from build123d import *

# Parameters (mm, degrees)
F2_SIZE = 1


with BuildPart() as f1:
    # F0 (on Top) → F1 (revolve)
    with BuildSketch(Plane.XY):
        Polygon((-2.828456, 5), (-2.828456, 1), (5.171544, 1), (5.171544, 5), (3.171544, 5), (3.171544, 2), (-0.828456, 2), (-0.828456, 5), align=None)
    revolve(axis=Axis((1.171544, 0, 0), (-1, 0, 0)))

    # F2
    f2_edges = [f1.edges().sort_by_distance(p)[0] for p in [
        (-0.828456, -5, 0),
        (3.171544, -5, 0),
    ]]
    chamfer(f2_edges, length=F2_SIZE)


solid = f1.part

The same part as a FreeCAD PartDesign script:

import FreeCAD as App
import Part
import Sketcher

V = App.Vector
Q = App.Units.Quantity


def edges_at(feature, points):
    """Names of the edges that pass closest to the given points."""
    edges = feature.Shape.Edges
    near = lambda p: min(range(len(edges)), key=lambda i: edges[i].distToShape(Part.Vertex(*p))[0])
    return sorted({f"Edge{near(p) + 1}" for p in points})

doc = App.newDocument("Part")
body = doc.addObject("PartDesign::Body", "Body")

# Sketch on XY plane
sketch1 = body.newObject("Sketcher::SketchObject", "Sketch")
sketch1.AttachmentSupport = (doc.getObject("XY_Plane"), [""])
sketch1.MapMode = "FlatFace"
sketch1.addGeometry([
    Part.LineSegment(V(-2.8, 5, 0), V(-2.8, 1, 0)),  # 0
    Part.LineSegment(V(-2.8, 1, 0), V(5.2, 1, 0)),  # 1
    Part.LineSegment(V(5.2, 1, 0), V(5.2, 5, 0)),  # 2
    Part.LineSegment(V(5.2, 5, 0), V(3.2, 5, 0)),  # 3
    Part.LineSegment(V(3.2, 5, 0), V(3.2, 2, 0)),  # 4
    Part.LineSegment(V(3.2, 2, 0), V(-0.8, 2, 0)),  # 5
    Part.LineSegment(V(-0.8, 2, 0), V(-0.8, 5, 0)),  # 6
    Part.LineSegment(V(-0.8, 5, 0), V(-2.8, 5, 0)),  # 7
], False)
sketch1.addConstraint([
    Sketcher.Constraint("Coincident", 0, 2, 1, 1),
    Sketcher.Constraint("Coincident", 1, 2, 2, 1),
    Sketcher.Constraint("Coincident", 2, 2, 3, 1),
    Sketcher.Constraint("Coincident", 3, 2, 4, 1),
    Sketcher.Constraint("Coincident", 4, 2, 5, 1),
    Sketcher.Constraint("Coincident", 5, 2, 6, 1),
    Sketcher.Constraint("Coincident", 6, 2, 7, 1),
    Sketcher.Constraint("Coincident", 7, 2, 0, 1),
    Sketcher.Constraint("Vertical", 0),
    Sketcher.Constraint("Horizontal", 1),
    Sketcher.Constraint("Vertical", 2),
    Sketcher.Constraint("Horizontal", 3),
    Sketcher.Constraint("Vertical", 4),
    Sketcher.Constraint("Horizontal", 5),
    Sketcher.Constraint("Vertical", 6),
    Sketcher.Constraint("Horizontal", 7),
    Sketcher.Constraint("Horizontal", 3, 2, 6, 2),
    Sketcher.Constraint("Equal", 3, 7),
    Sketcher.Constraint("Equal", 5, 0),
    Sketcher.Constraint("DistanceX", 1, 1, 1, 2, Q("8 mm")),
    Sketcher.Constraint("DistanceX", 3, 2, 3, 1, Q("2 mm")),
    Sketcher.Constraint("DistanceY", 4, 2, 4, 1, Q("3 mm")),
    Sketcher.Constraint("DistanceY", -1, 1, 0, 2, Q("1 mm")),
    Sketcher.Constraint("DistanceX", 0, 2, -1, 1, Q("2.828456 mm")),
])
revolution = body.newObject("PartDesign::Revolution", "Revolution")
revolution.Profile = sketch1
revolution.ReferenceAxis = (sketch1, ["H_Axis"])
revolution.Angle = 360
doc.recompute()

chamfer = body.newObject("PartDesign::Chamfer", "Chamfer")
chamfer.Base = (revolution, edges_at(revolution, [(-0.828, -5, 0), (3.172, -5, 0)]))
chamfer.Size = 1

doc.recompute()
